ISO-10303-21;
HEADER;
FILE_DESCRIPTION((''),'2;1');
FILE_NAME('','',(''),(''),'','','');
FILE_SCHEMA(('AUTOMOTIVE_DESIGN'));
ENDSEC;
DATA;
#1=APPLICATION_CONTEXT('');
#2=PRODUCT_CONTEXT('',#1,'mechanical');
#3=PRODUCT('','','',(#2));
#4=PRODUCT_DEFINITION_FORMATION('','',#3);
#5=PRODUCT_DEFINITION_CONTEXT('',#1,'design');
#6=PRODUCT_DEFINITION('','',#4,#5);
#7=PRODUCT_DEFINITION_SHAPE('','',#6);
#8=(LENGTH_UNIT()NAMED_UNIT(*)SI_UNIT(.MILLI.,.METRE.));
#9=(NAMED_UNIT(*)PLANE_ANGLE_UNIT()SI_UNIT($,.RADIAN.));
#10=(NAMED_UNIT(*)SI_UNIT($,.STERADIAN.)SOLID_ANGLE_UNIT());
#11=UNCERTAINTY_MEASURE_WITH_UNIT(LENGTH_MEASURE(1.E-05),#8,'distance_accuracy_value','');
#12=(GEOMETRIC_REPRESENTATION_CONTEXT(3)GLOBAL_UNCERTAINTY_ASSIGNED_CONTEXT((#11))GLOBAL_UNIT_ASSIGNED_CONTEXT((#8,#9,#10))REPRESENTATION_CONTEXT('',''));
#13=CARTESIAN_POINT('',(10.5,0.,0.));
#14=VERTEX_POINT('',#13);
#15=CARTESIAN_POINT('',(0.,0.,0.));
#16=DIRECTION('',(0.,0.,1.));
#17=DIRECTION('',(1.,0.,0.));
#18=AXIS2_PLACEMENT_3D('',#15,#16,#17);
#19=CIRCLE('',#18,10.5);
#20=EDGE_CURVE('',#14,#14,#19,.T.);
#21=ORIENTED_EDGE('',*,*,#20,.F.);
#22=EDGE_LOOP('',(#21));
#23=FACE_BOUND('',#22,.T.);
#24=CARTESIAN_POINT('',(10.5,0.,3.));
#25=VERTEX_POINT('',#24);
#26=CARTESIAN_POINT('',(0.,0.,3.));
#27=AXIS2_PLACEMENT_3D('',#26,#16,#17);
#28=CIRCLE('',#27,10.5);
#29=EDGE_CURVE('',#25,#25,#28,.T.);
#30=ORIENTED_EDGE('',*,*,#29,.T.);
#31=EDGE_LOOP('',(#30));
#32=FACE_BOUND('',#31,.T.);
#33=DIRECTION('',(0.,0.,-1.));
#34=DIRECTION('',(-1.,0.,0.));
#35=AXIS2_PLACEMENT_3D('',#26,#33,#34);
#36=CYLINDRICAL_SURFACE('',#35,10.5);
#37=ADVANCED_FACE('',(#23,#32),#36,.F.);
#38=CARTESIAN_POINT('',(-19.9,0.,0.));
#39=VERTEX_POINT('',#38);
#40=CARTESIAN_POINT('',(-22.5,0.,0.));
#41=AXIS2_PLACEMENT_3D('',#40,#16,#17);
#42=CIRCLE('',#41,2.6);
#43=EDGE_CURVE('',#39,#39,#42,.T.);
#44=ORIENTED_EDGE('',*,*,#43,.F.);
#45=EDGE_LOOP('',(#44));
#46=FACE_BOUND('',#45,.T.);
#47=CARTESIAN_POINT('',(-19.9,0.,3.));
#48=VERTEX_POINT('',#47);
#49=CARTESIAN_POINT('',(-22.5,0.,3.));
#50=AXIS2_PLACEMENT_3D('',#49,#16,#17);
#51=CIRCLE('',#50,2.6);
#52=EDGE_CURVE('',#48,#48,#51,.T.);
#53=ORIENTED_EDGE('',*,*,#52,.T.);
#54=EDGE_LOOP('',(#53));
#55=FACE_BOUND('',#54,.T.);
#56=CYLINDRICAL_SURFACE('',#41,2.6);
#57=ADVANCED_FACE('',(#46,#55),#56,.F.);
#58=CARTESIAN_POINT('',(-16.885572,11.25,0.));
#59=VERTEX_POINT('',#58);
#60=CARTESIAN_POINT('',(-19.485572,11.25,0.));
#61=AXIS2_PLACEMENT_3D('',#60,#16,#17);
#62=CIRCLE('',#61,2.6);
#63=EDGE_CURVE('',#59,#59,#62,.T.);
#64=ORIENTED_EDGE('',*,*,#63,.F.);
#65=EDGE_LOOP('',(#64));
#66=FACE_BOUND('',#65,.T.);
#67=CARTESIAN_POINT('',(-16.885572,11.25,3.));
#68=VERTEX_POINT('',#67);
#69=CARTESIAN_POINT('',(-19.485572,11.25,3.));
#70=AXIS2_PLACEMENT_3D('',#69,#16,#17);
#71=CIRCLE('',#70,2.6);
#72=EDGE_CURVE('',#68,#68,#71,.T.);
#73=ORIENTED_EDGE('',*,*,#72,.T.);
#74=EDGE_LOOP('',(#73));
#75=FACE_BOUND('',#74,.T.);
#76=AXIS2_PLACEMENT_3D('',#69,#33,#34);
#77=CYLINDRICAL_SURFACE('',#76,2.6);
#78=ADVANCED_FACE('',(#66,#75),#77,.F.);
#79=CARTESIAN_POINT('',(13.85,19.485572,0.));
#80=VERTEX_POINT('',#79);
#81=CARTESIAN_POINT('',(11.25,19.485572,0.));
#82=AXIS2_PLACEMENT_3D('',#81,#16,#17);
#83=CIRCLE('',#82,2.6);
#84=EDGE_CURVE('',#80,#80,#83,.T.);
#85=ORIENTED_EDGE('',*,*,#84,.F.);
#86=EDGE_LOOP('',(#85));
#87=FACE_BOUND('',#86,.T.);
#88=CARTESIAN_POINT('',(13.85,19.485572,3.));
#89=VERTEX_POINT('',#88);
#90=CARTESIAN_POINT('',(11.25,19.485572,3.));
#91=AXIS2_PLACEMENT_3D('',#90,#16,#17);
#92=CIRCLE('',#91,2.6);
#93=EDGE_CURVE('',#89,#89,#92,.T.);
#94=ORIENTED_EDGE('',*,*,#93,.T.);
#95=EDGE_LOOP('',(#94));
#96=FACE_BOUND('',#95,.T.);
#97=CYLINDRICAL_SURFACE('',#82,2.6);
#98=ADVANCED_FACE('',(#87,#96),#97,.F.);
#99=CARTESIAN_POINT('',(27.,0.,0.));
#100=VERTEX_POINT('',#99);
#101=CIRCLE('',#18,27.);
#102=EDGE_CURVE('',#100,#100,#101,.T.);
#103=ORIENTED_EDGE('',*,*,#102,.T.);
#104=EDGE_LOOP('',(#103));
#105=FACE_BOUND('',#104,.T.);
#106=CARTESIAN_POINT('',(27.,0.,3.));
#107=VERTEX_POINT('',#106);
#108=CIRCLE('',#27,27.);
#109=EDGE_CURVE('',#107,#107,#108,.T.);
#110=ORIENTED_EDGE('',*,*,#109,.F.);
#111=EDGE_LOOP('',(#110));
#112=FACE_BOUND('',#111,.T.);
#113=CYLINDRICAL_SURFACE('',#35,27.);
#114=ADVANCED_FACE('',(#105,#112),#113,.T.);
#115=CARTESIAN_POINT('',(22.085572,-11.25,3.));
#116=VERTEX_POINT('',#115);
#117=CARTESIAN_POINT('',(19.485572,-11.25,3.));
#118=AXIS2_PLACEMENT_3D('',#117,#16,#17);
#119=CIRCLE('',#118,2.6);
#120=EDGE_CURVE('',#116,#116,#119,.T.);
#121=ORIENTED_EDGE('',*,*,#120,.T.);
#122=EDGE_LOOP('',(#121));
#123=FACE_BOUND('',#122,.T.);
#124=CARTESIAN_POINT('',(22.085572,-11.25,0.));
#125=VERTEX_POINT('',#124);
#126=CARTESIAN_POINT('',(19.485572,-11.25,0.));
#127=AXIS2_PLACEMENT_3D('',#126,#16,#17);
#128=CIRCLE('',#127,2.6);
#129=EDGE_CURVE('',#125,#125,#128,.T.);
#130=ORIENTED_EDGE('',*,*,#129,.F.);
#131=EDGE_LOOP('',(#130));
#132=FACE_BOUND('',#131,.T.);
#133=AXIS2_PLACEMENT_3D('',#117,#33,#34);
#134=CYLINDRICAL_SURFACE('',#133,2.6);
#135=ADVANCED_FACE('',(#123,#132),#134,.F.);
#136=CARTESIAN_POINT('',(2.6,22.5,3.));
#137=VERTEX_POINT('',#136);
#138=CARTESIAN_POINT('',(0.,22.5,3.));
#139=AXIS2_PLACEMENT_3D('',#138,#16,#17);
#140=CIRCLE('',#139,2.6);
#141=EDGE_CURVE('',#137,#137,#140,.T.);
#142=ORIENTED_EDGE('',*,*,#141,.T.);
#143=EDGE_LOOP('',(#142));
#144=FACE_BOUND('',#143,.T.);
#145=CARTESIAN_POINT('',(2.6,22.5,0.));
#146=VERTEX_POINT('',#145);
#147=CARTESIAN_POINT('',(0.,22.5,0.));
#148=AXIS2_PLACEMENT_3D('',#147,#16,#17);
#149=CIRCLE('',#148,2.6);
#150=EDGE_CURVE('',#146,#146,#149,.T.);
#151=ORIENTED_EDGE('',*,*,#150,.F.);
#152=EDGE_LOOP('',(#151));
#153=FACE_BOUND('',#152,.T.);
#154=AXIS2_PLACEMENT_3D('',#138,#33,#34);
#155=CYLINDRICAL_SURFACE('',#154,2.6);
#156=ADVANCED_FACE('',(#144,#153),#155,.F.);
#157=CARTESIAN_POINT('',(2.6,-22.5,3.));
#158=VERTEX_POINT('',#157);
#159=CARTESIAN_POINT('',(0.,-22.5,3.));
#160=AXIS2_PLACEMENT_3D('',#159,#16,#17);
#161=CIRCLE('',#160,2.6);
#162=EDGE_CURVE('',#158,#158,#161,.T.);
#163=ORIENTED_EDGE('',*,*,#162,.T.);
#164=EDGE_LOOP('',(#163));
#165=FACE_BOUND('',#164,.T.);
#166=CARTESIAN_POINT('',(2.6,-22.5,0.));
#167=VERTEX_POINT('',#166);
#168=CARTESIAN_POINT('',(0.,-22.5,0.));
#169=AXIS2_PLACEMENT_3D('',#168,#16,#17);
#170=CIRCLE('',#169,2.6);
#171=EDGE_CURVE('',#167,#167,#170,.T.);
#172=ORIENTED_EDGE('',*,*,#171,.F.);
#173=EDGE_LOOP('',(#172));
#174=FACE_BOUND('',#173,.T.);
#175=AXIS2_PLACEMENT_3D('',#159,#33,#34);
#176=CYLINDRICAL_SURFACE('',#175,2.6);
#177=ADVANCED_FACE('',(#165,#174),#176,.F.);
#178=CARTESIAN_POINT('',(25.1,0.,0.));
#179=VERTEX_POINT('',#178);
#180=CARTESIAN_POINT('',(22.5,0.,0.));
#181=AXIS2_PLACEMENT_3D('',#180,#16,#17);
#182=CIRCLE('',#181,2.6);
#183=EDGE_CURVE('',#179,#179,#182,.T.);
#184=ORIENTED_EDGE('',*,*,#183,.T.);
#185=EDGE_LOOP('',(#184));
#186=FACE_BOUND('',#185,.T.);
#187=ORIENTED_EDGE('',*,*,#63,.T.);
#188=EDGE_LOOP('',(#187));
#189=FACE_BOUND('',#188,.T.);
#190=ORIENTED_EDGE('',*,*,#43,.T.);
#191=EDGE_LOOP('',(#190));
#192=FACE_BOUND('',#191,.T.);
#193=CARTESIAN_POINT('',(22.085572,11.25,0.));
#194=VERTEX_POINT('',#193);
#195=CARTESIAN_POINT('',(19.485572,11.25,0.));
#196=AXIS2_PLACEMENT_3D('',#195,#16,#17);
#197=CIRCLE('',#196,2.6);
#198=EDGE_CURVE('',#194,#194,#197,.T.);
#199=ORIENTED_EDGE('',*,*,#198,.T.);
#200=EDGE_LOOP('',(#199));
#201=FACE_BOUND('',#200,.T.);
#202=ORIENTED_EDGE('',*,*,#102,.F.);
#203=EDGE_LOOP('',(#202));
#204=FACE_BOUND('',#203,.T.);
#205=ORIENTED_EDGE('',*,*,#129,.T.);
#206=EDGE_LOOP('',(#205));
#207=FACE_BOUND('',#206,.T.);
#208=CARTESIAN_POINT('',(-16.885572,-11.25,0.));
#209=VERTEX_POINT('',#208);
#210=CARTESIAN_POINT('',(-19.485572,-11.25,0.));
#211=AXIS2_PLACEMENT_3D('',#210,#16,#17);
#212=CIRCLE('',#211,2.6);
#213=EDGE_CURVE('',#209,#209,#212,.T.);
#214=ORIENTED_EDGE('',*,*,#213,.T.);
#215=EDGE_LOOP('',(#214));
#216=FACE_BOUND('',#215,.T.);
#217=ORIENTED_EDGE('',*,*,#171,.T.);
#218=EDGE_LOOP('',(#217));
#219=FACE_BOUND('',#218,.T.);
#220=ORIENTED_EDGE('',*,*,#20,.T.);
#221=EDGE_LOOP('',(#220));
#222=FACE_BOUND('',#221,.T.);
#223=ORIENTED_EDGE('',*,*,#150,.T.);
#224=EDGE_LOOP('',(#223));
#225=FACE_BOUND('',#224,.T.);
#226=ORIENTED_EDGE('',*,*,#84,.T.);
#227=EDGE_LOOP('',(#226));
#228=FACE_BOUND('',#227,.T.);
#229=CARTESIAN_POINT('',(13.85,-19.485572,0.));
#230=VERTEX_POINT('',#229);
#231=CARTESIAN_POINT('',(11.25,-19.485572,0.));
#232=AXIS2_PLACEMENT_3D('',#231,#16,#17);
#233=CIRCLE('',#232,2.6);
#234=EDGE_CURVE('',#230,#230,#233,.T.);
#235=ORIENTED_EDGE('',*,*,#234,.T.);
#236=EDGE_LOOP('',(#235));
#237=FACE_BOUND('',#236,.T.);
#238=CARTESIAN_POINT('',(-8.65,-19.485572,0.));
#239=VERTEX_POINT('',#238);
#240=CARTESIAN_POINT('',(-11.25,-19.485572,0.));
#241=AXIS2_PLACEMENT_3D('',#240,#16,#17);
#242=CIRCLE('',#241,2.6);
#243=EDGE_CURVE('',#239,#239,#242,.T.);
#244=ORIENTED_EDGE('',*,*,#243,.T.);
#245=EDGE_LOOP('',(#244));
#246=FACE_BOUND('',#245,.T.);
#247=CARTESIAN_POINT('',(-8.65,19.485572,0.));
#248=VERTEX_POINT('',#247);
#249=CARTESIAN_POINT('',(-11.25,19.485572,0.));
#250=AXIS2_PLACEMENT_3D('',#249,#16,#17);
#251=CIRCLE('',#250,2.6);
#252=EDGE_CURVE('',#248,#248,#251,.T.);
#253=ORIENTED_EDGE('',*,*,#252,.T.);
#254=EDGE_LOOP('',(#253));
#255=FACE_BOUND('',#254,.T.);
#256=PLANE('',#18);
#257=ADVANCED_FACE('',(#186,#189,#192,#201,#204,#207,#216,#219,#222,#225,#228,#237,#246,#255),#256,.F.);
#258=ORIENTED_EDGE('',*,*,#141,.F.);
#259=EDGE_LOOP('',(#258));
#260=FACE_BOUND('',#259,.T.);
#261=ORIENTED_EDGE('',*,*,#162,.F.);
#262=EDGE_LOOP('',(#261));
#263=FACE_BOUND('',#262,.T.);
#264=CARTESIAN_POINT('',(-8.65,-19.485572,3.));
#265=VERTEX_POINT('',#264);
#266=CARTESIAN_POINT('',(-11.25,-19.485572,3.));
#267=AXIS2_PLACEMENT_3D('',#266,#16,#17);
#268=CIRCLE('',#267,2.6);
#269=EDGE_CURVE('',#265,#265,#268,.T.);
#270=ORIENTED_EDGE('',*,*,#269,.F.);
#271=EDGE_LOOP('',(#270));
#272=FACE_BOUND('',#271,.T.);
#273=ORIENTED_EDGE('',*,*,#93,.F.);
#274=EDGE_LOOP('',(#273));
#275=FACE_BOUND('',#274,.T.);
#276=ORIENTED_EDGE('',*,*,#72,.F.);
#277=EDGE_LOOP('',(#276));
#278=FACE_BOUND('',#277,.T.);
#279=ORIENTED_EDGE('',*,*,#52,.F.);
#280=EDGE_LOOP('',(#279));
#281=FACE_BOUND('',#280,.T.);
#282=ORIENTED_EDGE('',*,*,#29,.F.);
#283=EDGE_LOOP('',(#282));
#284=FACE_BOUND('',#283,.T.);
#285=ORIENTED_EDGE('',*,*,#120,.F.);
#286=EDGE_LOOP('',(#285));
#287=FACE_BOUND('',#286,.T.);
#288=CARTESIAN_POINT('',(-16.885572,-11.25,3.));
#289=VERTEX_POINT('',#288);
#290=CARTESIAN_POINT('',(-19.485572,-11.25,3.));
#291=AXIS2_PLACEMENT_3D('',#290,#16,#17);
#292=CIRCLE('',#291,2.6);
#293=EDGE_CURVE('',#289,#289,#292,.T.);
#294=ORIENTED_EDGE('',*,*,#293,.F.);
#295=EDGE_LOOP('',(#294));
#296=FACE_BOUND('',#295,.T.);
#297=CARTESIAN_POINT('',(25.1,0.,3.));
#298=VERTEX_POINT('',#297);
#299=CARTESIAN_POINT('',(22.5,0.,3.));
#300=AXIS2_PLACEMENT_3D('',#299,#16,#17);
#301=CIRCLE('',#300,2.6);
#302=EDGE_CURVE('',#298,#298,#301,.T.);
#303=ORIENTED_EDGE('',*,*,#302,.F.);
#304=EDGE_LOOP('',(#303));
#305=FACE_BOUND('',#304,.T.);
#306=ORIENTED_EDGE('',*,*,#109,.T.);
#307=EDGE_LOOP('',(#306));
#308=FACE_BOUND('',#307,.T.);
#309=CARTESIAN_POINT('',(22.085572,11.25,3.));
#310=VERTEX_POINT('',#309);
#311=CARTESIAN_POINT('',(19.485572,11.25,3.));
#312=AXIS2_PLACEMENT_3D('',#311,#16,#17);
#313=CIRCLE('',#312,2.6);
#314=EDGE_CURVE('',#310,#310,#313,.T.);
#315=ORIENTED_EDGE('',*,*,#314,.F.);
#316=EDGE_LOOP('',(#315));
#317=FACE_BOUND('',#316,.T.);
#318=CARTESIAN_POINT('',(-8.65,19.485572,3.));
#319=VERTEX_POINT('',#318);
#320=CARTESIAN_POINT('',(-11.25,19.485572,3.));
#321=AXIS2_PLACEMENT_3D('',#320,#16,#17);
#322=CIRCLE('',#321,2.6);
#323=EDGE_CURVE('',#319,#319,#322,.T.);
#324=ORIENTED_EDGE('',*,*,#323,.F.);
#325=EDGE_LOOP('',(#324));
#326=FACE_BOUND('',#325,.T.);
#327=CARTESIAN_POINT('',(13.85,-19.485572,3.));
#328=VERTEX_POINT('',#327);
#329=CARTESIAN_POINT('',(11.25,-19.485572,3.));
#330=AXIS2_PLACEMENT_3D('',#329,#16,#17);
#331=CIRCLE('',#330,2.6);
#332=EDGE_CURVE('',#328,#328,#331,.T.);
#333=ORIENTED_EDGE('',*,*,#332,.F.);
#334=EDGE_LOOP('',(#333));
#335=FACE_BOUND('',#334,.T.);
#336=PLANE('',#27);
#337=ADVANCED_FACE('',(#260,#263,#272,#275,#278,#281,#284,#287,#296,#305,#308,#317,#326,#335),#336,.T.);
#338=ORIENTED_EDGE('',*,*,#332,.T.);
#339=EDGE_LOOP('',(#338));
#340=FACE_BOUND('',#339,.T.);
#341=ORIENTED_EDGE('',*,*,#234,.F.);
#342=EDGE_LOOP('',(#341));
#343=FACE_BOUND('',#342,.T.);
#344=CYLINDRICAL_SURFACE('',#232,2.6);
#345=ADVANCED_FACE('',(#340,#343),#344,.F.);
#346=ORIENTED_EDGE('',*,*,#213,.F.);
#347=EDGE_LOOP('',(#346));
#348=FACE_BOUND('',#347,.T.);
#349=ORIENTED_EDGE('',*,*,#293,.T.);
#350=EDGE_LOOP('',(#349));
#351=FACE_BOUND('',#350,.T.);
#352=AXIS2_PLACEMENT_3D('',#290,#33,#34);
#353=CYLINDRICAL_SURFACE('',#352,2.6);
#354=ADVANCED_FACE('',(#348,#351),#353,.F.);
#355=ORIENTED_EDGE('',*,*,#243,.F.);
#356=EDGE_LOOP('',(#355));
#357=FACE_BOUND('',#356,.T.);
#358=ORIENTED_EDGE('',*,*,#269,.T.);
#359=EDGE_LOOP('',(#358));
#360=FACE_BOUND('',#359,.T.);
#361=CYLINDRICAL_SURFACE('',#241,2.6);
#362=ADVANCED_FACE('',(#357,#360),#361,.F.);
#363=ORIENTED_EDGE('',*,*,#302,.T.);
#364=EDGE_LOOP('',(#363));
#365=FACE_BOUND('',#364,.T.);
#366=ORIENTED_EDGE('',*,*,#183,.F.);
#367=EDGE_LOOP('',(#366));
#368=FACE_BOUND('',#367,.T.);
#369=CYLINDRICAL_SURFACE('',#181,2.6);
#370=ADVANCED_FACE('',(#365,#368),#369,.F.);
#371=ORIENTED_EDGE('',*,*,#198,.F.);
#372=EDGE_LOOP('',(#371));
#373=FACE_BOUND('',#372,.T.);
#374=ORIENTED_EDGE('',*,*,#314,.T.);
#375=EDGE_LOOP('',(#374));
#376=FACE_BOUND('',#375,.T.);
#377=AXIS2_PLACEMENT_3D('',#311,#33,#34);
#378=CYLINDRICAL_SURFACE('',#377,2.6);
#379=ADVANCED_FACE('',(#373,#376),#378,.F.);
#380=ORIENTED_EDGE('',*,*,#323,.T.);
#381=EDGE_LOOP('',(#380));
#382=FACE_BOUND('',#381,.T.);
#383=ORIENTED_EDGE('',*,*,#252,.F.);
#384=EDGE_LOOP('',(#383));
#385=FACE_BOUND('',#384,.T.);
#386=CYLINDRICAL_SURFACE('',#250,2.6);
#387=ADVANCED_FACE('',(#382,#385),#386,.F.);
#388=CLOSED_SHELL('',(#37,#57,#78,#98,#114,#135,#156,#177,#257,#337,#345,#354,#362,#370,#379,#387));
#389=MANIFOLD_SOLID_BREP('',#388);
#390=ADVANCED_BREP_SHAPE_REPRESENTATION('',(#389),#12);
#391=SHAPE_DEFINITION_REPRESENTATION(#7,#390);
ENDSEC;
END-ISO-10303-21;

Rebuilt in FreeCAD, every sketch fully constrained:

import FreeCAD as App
import Part
import Sketcher

V = App.Vector
Q = App.Units.Quantity

doc = App.newDocument("Part")
body = doc.addObject("PartDesign::Body", "Body")

sketch1 = doc.addObject("Sketcher::SketchObject", "Sketch")
body.addObject(sketch1)
sketch1.AttachmentSupport = (doc.XY_Plane, [""])
sketch1.MapMode = "FlatFace"
sketch1.addGeometry(Part.Circle(V(0, 0, 0), V(0, 0, 1), 27), False)
sketch1.addGeometry(Part.Circle(V(-19.5, -11.2, 0), V(0, 0, 1), 2.6), False)
sketch1.addGeometry(Part.Circle(V(0, -22.5, 0), V(0, 0, 1), 2.6), False)
sketch1.addGeometry(Part.Circle(V(19.5, -11.2, 0), V(0, 0, 1), 2.6), False)
sketch1.addGeometry(Part.Circle(V(-19.5, 11.2, 0), V(0, 0, 1), 2.6), False)
sketch1.addGeometry(Part.Circle(V(0, 0, 0), V(0, 0, 1), 10.5), False)
sketch1.addGeometry(Part.Circle(V(19.5, 11.2, 0), V(0, 0, 1), 2.6), False)
sketch1.addGeometry(Part.Circle(V(0, 22.5, 0), V(0, 0, 1), 2.6), False)
sketch1.addConstraint(Sketcher.Constraint("Coincident", 0, 3, -1, 1))
sketch1.addConstraint(Sketcher.Constraint("Coincident", 5, 3, -1, 1))
sketch1.addConstraint(Sketcher.Constraint("Equal", 1, 2))
sketch1.addConstraint(Sketcher.Constraint("Equal", 2, 3))
sketch1.addConstraint(Sketcher.Constraint("Equal", 3, 4))
sketch1.addConstraint(Sketcher.Constraint("Equal", 4, 6))
sketch1.addConstraint(Sketcher.Constraint("Equal", 6, 7))
sketch1.addConstraint(Sketcher.Constraint("Symmetric", 3, 3, 4, 3, -1, 1))
sketch1.addConstraint(Sketcher.Constraint("Symmetric", 1, 3, 6, 3, -1, 1))
sketch1.addConstraint(Sketcher.Constraint("Symmetric", 2, 3, 7, 3, -1, 1))
sketch1.addConstraint(Sketcher.Constraint("Symmetric", 1, 3, 3, 3, -2))
sketch1.addConstraint(Sketcher.Constraint("PointOnObject", 2, 3, -2))
sketch1.addConstraint(Sketcher.Constraint("Diameter", 0, Q("54 mm")))
sketch1.addConstraint(Sketcher.Constraint("Diameter", 5, Q("21 mm")))
sketch1.addConstraint(Sketcher.Constraint("Diameter", 1, Q("5.2 mm")))
sketch1.addConstraint(Sketcher.Constraint("DistanceY", 2, 3, -1, 1, Q("22.5 mm")))
sketch1.addConstraint(Sketcher.Constraint("DistanceY", 1, 3, 4, 3, Q("22.5 mm")))
sketch1.addConstraint(Sketcher.Constraint("DistanceX", 1, 3, -1, 1, Q("19.485572 mm")))
pad1 = doc.addObject("PartDesign::Pad", "Pad")
body.addObject(pad1)
pad1.Profile = sketch1
pad1.Length = 3

sketch2 = doc.addObject("Sketcher::SketchObject", "Sketch001")
body.addObject(sketch2)
sketch2.AttachmentSupport = (doc.XY_Plane, [""])
sketch2.MapMode = "FlatFace"
sketch2.AttachmentOffset = App.Placement(V(0, 0, 3), App.Rotation())
sketch2.addGeometry(Part.Circle(V(11.2, 19.5, 0), V(0, 0, 1), 2.6), False)
sketch2.addGeometry(Part.Circle(V(22.5, 0, 0), V(0, 0, 1), 2.6), False)
sketch2.addGeometry(Part.Circle(V(11.2, -19.5, 0), V(0, 0, 1), 2.6), False)
sketch2.addGeometry(Part.Circle(V(-11.2, -19.5, 0), V(0, 0, 1), 2.6), False)
sketch2.addGeometry(Part.Circle(V(-22.5, 0, 0), V(0, 0, 1), 2.6), False)
sketch2.addGeometry(Part.Circle(V(-11.2, 19.5, 0), V(0, 0, 1), 2.6), False)
sketch2.addConstraint(Sketcher.Constraint("Equal", 0, 1))
sketch2.addConstraint(Sketcher.Constraint("Equal", 1, 2))
sketch2.addConstraint(Sketcher.Constraint("Equal", 2, 3))
sketch2.addConstraint(Sketcher.Constraint("Equal", 3, 4))
sketch2.addConstraint(Sketcher.Constraint("Equal", 4, 5))
sketch2.addConstraint(Sketcher.Constraint("Symmetric", 0, 3, 3, 3, -1, 1))
sketch2.addConstraint(Sketcher.Constraint("Symmetric", 1, 3, 4, 3, -1, 1))
sketch2.addConstraint(Sketcher.Constraint("Symmetric", 2, 3, 5, 3, -1, 1))
sketch2.addConstraint(Sketcher.Constraint("Symmetric", 2, 3, 3, 3, -2))
sketch2.addConstraint(Sketcher.Constraint("PointOnObject", 1, 3, -1))
sketch2.addConstraint(Sketcher.Constraint("Diameter", 0, Q("5.2 mm")))
sketch2.addConstraint(Sketcher.Constraint("DistanceX", 4, 3, 1, 3, Q("45 mm")))
sketch2.addConstraint(Sketcher.Constraint("DistanceX", 3, 3, 2, 3, Q("22.5 mm")))
sketch2.addConstraint(Sketcher.Constraint("DistanceY", -1, 1, 0, 3, Q("19.485572 mm")))
pocket1 = doc.addObject("PartDesign::Pocket", "Pocket")
body.addObject(pocket1)
pocket1.Profile = sketch2
pocket1.Length = 3

doc.recompute()
